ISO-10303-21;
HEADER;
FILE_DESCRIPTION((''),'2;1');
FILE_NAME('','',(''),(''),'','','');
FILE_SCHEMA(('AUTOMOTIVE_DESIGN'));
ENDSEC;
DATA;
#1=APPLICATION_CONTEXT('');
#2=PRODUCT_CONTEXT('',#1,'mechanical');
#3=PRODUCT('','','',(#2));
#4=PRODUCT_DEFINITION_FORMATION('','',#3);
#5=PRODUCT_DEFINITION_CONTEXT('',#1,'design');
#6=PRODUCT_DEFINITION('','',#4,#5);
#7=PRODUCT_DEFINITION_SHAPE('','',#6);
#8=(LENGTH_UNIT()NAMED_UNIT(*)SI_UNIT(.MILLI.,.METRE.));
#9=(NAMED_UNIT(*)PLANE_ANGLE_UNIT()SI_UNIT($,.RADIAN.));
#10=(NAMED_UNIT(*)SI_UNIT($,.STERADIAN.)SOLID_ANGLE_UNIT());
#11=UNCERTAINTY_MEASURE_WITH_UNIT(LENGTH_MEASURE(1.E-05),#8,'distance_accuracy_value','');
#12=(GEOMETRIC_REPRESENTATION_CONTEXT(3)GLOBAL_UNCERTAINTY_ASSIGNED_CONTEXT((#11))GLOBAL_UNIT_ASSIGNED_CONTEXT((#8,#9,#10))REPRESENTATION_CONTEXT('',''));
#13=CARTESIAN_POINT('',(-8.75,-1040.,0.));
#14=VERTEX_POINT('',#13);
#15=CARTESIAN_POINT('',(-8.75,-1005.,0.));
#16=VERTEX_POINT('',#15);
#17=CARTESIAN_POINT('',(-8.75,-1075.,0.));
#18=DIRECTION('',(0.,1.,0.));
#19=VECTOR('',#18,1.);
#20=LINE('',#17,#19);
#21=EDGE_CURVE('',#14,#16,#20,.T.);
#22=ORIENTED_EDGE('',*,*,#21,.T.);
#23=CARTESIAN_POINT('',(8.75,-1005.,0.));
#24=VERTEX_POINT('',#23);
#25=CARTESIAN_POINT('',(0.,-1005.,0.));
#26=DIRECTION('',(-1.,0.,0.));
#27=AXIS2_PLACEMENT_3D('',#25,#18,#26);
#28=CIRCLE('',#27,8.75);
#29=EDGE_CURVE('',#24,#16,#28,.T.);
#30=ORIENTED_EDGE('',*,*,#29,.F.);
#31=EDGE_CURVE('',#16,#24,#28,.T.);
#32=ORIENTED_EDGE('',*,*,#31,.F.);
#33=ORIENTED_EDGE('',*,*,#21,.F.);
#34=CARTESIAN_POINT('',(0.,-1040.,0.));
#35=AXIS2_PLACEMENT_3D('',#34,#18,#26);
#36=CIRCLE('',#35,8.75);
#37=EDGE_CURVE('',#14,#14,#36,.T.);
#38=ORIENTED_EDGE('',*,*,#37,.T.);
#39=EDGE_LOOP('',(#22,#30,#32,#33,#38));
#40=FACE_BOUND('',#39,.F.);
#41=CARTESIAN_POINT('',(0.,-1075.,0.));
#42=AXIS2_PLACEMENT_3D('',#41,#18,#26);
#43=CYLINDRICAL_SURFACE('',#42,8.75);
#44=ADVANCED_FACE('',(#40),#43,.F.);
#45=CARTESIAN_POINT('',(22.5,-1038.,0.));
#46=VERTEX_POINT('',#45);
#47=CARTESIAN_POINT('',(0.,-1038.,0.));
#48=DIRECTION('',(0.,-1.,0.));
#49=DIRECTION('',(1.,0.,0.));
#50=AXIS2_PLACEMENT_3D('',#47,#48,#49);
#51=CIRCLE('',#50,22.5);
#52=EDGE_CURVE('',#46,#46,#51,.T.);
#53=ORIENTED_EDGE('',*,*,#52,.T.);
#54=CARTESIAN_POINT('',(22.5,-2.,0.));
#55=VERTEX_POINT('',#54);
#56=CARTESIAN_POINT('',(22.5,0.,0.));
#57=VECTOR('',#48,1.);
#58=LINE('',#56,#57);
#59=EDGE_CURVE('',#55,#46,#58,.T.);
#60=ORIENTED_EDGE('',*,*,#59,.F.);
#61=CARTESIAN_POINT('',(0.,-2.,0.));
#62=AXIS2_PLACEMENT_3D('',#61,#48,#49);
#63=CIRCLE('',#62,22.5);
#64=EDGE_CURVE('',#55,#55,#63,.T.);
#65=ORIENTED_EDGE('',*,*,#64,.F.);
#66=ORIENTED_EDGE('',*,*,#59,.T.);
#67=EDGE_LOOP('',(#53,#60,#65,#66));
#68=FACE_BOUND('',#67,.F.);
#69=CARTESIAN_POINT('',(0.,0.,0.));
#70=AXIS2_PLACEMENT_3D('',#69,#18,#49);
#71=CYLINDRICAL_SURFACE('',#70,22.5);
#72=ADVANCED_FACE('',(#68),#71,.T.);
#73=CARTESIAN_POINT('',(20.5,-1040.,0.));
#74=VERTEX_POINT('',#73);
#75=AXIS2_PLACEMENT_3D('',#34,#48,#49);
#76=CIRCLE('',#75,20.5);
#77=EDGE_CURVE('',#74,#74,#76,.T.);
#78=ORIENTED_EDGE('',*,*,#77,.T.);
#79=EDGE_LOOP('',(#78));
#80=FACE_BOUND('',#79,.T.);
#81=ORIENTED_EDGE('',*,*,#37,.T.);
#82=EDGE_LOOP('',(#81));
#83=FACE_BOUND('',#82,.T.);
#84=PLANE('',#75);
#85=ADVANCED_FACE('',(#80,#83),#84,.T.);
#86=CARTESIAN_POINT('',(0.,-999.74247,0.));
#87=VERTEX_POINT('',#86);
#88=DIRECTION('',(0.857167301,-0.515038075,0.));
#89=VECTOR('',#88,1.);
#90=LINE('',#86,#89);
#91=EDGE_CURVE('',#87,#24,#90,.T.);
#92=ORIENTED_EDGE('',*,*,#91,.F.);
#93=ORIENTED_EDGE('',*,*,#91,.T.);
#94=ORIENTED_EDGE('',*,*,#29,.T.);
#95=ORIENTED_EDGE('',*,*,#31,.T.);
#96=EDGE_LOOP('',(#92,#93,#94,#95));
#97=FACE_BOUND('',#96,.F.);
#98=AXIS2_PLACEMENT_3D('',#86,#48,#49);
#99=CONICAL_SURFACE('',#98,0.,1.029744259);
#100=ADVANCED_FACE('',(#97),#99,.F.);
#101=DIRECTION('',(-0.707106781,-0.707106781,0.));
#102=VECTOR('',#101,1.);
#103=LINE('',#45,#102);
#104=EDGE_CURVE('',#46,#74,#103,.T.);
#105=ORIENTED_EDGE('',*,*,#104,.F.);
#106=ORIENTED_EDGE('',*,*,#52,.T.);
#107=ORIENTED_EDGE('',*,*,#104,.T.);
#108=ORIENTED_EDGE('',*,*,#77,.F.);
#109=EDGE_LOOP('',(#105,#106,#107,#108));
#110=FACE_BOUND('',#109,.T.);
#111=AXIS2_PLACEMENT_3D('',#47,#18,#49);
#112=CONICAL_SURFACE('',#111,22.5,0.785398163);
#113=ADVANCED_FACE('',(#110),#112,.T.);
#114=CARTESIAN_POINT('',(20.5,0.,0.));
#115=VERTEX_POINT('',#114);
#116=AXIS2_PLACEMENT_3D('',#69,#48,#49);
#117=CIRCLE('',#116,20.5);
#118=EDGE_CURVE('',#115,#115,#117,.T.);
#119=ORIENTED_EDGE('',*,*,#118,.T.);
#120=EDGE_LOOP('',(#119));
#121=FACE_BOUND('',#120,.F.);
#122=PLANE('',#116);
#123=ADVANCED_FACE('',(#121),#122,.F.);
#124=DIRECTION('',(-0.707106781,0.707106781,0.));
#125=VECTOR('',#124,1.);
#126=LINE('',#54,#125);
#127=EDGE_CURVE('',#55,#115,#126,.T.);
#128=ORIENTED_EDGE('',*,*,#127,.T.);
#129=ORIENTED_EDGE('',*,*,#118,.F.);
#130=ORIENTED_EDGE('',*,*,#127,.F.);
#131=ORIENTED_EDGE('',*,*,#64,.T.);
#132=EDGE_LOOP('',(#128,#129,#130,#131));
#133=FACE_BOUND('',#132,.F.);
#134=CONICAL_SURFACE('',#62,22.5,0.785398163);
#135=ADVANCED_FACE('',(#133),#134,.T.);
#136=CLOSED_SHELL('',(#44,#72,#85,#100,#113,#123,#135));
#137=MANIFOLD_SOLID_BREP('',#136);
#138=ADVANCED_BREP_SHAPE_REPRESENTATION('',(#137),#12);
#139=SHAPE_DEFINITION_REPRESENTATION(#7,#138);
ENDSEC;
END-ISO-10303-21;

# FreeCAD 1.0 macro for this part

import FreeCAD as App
import Part
import Sketcher
Q = App.Units.Quantity


def edges_at(feature, points):
    """Names of the edges that pass closest to the given points."""
    edges = feature.Shape.Edges
    near = lambda p: min(range(len(edges)), key=lambda i: edges[i].distToShape(Part.Vertex(*p))[0])
    return sorted({f"Edge{near(p) + 1}" for p in points})

doc = App.newDocument("Part")
params = doc.addObject("Spreadsheet::Sheet", "Params")
for row, (alias, value) in enumerate([
    ("sketch1_diameter", "45 mm"),
    ("pad1_length", "1040 mm"),
    ("chamfer_size", "2 mm"),
    ("sketch2_diameter", "17.5 mm"),
    ("hole_diameter", "17.5 mm"),
    ("hole_depth", "35 mm"),
], start=1):
    params.set(f"A{row}", alias)
    params.set(f"B{row}", "=" + value)
    params.setAlias(f"B{row}", alias)

body = doc.addObject("PartDesign::Body", "Body")

# Sketch on XZ plane
sketch1 = body.newObject("Sketcher::SketchObject", "Sketch")
sketch1.AttachmentSupport = (doc.getObject("XZ_Plane"), [""])
sketch1.MapMode = "FlatFace"
sketch1.addGeometry(Part.Circle(App.Vector(0, 0, 0), App.Vector(0, 0, 1), 22), False)
sketch1.addConstraint(Sketcher.Constraint("Coincident", 0, 3, -1, 1))
sketch1.addConstraint(Sketcher.Constraint("Diameter", 0, Q("45 mm")))
sketch1.setExpression("Constraints[1]", "Params.sketch1_diameter")
pad1 = body.newObject("PartDesign::Pad", "Pad")
pad1.Profile = sketch1
pad1.setExpression("Length", "Params.pad1_length")
doc.recompute()

chamfer = body.newObject("PartDesign::Chamfer", "Chamfer")
chamfer.Base = (pad1, edges_at(pad1, [(-22.5, 0, 0), (-22.5, -1040, 0)]))
chamfer.setExpression("Size", "Params.chamfer_size")

# Sketch on XZ plane
sketch2 = body.newObject("Sketcher::SketchObject", "Sketch001")
sketch2.AttachmentSupport = (doc.getObject("XZ_Plane"), [""])
sketch2.MapMode = "FlatFace"
sketch2.AttachmentOffset = App.Placement(App.Vector(0, 0, 1040), App.Rotation())
sketch2.addGeometry(Part.Circle(App.Vector(0, 0, 0), App.Vector(0, 0, 1), 9), False)
sketch2.addConstraint(Sketcher.Constraint("Coincident", 0, 3, -1, 1))
sketch2.addConstraint(Sketcher.Constraint("Diameter", 0, Q("17.5 mm")))
sketch2.setExpression("Constraints[1]", "Params.sketch2_diameter")
doc.recompute()
hole = body.newObject("PartDesign::Hole", "Hole")
hole.Profile = sketch2
hole.ThreadType = "None"
hole.setExpression("Diameter", "Params.hole_diameter")
hole.DepthType = "Dimension"
hole.setExpression("Depth", "Params.hole_depth")
hole.DrillPoint = "Angled"
hole.DrillPointAngle = 118

doc.recompute()
